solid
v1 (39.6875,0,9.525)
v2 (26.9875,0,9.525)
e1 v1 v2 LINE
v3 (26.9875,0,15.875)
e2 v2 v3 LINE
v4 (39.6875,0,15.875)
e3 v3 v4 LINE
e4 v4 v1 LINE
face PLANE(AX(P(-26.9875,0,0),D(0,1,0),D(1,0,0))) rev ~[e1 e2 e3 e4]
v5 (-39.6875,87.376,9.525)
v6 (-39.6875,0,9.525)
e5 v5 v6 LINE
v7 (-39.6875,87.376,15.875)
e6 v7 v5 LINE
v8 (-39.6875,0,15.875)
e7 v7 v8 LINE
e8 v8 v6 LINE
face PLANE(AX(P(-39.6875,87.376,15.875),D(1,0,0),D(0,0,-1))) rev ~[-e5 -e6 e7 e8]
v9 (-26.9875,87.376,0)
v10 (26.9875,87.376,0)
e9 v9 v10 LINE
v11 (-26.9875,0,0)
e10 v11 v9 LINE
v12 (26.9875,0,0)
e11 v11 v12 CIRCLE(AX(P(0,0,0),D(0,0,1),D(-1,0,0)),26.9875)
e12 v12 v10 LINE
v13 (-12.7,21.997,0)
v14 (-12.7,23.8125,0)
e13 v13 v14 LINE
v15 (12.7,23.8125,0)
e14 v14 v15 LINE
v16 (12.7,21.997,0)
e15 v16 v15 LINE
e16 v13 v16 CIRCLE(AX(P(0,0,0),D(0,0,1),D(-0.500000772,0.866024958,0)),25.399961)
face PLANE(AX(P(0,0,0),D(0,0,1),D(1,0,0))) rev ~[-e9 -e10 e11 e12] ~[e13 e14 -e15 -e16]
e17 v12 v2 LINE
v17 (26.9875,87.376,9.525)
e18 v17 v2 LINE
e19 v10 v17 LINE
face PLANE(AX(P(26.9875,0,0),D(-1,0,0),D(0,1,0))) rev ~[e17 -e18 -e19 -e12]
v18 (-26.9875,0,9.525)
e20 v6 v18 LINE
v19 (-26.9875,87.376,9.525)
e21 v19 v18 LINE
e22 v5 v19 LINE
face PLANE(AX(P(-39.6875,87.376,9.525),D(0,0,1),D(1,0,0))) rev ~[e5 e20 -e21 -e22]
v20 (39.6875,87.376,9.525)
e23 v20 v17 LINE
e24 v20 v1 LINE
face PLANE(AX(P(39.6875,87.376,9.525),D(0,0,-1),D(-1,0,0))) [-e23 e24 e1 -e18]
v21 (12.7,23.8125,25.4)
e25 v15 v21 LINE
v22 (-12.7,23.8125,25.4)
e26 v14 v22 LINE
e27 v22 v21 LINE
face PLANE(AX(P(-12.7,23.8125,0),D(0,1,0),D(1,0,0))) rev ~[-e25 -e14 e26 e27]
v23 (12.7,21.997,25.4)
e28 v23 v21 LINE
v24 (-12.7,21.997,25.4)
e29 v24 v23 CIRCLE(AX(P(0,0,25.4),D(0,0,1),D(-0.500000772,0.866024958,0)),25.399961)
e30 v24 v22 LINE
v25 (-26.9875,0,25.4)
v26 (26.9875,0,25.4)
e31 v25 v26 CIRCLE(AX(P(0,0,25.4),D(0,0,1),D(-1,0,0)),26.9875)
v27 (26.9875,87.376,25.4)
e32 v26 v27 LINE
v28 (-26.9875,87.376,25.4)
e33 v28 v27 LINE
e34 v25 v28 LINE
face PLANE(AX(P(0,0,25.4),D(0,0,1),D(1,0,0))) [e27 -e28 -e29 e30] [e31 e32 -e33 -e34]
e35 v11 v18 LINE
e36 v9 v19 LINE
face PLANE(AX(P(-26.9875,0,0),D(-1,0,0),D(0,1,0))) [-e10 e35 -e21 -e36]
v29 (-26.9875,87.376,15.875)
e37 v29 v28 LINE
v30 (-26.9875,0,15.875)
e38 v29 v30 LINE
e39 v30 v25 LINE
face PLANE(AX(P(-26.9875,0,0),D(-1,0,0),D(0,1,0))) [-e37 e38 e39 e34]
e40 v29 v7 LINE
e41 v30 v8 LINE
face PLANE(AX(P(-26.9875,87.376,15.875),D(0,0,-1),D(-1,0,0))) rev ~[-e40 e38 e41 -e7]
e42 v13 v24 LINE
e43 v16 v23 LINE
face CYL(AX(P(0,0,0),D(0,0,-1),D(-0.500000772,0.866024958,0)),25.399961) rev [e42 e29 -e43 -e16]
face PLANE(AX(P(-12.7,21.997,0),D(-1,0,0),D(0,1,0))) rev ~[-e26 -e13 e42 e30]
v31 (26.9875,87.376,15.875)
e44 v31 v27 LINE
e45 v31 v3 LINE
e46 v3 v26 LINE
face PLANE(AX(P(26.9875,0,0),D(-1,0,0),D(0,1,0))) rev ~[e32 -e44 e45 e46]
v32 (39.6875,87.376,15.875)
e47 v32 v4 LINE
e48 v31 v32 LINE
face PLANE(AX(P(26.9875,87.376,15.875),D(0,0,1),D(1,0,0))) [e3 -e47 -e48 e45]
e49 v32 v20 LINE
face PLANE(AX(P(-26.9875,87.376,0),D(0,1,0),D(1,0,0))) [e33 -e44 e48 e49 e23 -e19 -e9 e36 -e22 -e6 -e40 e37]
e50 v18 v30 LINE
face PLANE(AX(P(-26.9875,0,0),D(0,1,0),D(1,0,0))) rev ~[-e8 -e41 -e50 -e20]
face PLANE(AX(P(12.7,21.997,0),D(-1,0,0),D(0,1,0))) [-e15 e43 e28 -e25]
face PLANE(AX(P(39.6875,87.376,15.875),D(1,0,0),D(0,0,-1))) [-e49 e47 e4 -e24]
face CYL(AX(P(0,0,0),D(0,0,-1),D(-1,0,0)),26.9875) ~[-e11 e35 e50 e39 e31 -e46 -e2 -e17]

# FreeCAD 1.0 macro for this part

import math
import FreeCAD as App
import Part
import Sketcher
from FreeCAD import Vector
Q = App.Units.Quantity


def add_polygon(sketch, points):
    """Adds a closed chain of lines whose ends are joined by coincident constraints."""
    first, n = sketch.GeometryCount, len(points)
    for a, b in zip(points, points[1:] + points[:1]):
        sketch.addGeometry(Part.LineSegment(App.Vector(*a, 0), App.Vector(*b, 0)), False)
    for i in range(n):
        sketch.addConstraint(Sketcher.Constraint("Coincident", first + i, 2, first + (i + 1) % n, 1))

doc = App.newDocument("Part")
body = doc.addObject("PartDesign::Body", "Body")

# Sketch on XY plane
sketch1 = body.newObject("Sketcher::SketchObject", "Sketch")
sketch1.AttachmentSupport = (doc.getObject("XY_Plane"), [""])
sketch1.MapMode = "FlatFace"
sketch1.addGeometry([
    Part.LineSegment(Vector(-27, 87.4, 0), Vector(-27, 0, 0)),  # 0
    Part.ArcOfCircle(Part.Circle(Vector(0, 0, 0), Vector(0, 0, 1), 27), math.radians(180), math.radians(360)),  # 1
    Part.LineSegment(Vector(27, 0, 0), Vector(27, 87.4, 0)),  # 2
    Part.LineSegment(Vector(27, 87.4, 0), Vector(-27, 87.4, 0)),  # 3
    Part.ArcOfCircle(Part.Circle(Vector(0, 0, 0), Vector(0, 0, 1), 25.4), math.radians(120), math.radians(420)),  # 4
    Part.LineSegment(Vector(-12.7, 22, 0), Vector(-12.7, 23.8, 0)),  # 5
    Part.LineSegment(Vector(-12.7, 23.8, 0), Vector(12.7, 23.8, 0)),  # 6
    Part.LineSegment(Vector(12.7, 23.8, 0), Vector(12.7, 22, 0)),  # 7
], False)
sketch1.addConstraint([
    Sketcher.Constraint("Tangent", 0, 2, 1, 1),
    Sketcher.Constraint("Tangent", 1, 2, 2, 1),
    Sketcher.Constraint("Coincident", 2, 2, 3, 1),
    Sketcher.Constraint("Coincident", 3, 2, 0, 1),
    Sketcher.Constraint("Coincident", 4, 1, 5, 1),
    Sketcher.Constraint("Coincident", 5, 2, 6, 1),
    Sketcher.Constraint("Coincident", 6, 2, 7, 1),
    Sketcher.Constraint("Coincident", 7, 2, 4, 2),
    Sketcher.Constraint("Vertical", 0),
    Sketcher.Constraint("Vertical", 2),
    Sketcher.Constraint("Horizontal", 3),
    Sketcher.Constraint("Vertical", 5),
    Sketcher.Constraint("Horizontal", 6),
    Sketcher.Constraint("Vertical", 7),
    Sketcher.Constraint("Coincident", 1, 3, -1, 1),
    Sketcher.Constraint("Coincident", 4, 3, -1, 1),
    Sketcher.Constraint("Horizontal", 4, 1, 7, 2),
    Sketcher.Constraint("Radius", 1, Q("1.0625 in")),
    Sketcher.Constraint("Radius", 4, Q("1 in")),
    Sketcher.Constraint("DistanceY", 0, 2, 0, 1, Q("3.44 in")),
    Sketcher.Constraint("DistanceX", 6, 1, 6, 2, Q("1 in")),
    Sketcher.Constraint("DistanceY", -1, 1, 5, 2, Q("0.9375 in")),
])
pad1 = body.newObject("PartDesign::Pad", "Pad")
pad1.Profile = sketch1
pad1.Length = Q("1 in")

# Sketch on XZ plane
sketch2 = body.newObject("Sketcher::SketchObject", "Sketch001")
sketch2.AttachmentSupport = (doc.getObject("XZ_Plane"), [""])
sketch2.MapMode = "FlatFace"
sketch2.AttachmentOffset = App.Placement(Vector(0, 0, -3.44 * 25.4), App.Rotation())
add_polygon(sketch2, [(-27, 16), (-27, 10), (-40, 10), (-40, 16)])  # lines 0-3
add_polygon(sketch2, [(40, 10), (27, 10), (27, 16), (40, 16)])  # lines 4-7
sketch2.addConstraint([
    Sketcher.Constraint("Vertical", 0),
    Sketcher.Constraint("Horizontal", 1),
    Sketcher.Constraint("Vertical", 2),
    Sketcher.Constraint("Horizontal", 3),
    Sketcher.Constraint("Horizontal", 4),
    Sketcher.Constraint("Vertical", 5),
    Sketcher.Constraint("Horizontal", 6),
    Sketcher.Constraint("Vertical", 7),
    Sketcher.Constraint("Symmetric", 0, 2, 4, 2, -2),
    Sketcher.Constraint("Symmetric", 2, 2, 6, 2, -2),
    Sketcher.Constraint("DistanceX", 1, 2, 1, 1, Q("0.5 in")),
    Sketcher.Constraint("DistanceY", 0, 2, 0, 1, Q("0.25 in")),
    Sketcher.Constraint("DistanceX", 0, 2, -1, 1, Q("1.0625 in")),
    Sketcher.Constraint("DistanceY", -1, 1, 0, 2, Q("0.375 in")),
])
pad2 = body.newObject("PartDesign::Pad", "Pad001")
pad2.Profile = sketch2
pad2.Length = Q("3.44 in")

doc.recompute()
